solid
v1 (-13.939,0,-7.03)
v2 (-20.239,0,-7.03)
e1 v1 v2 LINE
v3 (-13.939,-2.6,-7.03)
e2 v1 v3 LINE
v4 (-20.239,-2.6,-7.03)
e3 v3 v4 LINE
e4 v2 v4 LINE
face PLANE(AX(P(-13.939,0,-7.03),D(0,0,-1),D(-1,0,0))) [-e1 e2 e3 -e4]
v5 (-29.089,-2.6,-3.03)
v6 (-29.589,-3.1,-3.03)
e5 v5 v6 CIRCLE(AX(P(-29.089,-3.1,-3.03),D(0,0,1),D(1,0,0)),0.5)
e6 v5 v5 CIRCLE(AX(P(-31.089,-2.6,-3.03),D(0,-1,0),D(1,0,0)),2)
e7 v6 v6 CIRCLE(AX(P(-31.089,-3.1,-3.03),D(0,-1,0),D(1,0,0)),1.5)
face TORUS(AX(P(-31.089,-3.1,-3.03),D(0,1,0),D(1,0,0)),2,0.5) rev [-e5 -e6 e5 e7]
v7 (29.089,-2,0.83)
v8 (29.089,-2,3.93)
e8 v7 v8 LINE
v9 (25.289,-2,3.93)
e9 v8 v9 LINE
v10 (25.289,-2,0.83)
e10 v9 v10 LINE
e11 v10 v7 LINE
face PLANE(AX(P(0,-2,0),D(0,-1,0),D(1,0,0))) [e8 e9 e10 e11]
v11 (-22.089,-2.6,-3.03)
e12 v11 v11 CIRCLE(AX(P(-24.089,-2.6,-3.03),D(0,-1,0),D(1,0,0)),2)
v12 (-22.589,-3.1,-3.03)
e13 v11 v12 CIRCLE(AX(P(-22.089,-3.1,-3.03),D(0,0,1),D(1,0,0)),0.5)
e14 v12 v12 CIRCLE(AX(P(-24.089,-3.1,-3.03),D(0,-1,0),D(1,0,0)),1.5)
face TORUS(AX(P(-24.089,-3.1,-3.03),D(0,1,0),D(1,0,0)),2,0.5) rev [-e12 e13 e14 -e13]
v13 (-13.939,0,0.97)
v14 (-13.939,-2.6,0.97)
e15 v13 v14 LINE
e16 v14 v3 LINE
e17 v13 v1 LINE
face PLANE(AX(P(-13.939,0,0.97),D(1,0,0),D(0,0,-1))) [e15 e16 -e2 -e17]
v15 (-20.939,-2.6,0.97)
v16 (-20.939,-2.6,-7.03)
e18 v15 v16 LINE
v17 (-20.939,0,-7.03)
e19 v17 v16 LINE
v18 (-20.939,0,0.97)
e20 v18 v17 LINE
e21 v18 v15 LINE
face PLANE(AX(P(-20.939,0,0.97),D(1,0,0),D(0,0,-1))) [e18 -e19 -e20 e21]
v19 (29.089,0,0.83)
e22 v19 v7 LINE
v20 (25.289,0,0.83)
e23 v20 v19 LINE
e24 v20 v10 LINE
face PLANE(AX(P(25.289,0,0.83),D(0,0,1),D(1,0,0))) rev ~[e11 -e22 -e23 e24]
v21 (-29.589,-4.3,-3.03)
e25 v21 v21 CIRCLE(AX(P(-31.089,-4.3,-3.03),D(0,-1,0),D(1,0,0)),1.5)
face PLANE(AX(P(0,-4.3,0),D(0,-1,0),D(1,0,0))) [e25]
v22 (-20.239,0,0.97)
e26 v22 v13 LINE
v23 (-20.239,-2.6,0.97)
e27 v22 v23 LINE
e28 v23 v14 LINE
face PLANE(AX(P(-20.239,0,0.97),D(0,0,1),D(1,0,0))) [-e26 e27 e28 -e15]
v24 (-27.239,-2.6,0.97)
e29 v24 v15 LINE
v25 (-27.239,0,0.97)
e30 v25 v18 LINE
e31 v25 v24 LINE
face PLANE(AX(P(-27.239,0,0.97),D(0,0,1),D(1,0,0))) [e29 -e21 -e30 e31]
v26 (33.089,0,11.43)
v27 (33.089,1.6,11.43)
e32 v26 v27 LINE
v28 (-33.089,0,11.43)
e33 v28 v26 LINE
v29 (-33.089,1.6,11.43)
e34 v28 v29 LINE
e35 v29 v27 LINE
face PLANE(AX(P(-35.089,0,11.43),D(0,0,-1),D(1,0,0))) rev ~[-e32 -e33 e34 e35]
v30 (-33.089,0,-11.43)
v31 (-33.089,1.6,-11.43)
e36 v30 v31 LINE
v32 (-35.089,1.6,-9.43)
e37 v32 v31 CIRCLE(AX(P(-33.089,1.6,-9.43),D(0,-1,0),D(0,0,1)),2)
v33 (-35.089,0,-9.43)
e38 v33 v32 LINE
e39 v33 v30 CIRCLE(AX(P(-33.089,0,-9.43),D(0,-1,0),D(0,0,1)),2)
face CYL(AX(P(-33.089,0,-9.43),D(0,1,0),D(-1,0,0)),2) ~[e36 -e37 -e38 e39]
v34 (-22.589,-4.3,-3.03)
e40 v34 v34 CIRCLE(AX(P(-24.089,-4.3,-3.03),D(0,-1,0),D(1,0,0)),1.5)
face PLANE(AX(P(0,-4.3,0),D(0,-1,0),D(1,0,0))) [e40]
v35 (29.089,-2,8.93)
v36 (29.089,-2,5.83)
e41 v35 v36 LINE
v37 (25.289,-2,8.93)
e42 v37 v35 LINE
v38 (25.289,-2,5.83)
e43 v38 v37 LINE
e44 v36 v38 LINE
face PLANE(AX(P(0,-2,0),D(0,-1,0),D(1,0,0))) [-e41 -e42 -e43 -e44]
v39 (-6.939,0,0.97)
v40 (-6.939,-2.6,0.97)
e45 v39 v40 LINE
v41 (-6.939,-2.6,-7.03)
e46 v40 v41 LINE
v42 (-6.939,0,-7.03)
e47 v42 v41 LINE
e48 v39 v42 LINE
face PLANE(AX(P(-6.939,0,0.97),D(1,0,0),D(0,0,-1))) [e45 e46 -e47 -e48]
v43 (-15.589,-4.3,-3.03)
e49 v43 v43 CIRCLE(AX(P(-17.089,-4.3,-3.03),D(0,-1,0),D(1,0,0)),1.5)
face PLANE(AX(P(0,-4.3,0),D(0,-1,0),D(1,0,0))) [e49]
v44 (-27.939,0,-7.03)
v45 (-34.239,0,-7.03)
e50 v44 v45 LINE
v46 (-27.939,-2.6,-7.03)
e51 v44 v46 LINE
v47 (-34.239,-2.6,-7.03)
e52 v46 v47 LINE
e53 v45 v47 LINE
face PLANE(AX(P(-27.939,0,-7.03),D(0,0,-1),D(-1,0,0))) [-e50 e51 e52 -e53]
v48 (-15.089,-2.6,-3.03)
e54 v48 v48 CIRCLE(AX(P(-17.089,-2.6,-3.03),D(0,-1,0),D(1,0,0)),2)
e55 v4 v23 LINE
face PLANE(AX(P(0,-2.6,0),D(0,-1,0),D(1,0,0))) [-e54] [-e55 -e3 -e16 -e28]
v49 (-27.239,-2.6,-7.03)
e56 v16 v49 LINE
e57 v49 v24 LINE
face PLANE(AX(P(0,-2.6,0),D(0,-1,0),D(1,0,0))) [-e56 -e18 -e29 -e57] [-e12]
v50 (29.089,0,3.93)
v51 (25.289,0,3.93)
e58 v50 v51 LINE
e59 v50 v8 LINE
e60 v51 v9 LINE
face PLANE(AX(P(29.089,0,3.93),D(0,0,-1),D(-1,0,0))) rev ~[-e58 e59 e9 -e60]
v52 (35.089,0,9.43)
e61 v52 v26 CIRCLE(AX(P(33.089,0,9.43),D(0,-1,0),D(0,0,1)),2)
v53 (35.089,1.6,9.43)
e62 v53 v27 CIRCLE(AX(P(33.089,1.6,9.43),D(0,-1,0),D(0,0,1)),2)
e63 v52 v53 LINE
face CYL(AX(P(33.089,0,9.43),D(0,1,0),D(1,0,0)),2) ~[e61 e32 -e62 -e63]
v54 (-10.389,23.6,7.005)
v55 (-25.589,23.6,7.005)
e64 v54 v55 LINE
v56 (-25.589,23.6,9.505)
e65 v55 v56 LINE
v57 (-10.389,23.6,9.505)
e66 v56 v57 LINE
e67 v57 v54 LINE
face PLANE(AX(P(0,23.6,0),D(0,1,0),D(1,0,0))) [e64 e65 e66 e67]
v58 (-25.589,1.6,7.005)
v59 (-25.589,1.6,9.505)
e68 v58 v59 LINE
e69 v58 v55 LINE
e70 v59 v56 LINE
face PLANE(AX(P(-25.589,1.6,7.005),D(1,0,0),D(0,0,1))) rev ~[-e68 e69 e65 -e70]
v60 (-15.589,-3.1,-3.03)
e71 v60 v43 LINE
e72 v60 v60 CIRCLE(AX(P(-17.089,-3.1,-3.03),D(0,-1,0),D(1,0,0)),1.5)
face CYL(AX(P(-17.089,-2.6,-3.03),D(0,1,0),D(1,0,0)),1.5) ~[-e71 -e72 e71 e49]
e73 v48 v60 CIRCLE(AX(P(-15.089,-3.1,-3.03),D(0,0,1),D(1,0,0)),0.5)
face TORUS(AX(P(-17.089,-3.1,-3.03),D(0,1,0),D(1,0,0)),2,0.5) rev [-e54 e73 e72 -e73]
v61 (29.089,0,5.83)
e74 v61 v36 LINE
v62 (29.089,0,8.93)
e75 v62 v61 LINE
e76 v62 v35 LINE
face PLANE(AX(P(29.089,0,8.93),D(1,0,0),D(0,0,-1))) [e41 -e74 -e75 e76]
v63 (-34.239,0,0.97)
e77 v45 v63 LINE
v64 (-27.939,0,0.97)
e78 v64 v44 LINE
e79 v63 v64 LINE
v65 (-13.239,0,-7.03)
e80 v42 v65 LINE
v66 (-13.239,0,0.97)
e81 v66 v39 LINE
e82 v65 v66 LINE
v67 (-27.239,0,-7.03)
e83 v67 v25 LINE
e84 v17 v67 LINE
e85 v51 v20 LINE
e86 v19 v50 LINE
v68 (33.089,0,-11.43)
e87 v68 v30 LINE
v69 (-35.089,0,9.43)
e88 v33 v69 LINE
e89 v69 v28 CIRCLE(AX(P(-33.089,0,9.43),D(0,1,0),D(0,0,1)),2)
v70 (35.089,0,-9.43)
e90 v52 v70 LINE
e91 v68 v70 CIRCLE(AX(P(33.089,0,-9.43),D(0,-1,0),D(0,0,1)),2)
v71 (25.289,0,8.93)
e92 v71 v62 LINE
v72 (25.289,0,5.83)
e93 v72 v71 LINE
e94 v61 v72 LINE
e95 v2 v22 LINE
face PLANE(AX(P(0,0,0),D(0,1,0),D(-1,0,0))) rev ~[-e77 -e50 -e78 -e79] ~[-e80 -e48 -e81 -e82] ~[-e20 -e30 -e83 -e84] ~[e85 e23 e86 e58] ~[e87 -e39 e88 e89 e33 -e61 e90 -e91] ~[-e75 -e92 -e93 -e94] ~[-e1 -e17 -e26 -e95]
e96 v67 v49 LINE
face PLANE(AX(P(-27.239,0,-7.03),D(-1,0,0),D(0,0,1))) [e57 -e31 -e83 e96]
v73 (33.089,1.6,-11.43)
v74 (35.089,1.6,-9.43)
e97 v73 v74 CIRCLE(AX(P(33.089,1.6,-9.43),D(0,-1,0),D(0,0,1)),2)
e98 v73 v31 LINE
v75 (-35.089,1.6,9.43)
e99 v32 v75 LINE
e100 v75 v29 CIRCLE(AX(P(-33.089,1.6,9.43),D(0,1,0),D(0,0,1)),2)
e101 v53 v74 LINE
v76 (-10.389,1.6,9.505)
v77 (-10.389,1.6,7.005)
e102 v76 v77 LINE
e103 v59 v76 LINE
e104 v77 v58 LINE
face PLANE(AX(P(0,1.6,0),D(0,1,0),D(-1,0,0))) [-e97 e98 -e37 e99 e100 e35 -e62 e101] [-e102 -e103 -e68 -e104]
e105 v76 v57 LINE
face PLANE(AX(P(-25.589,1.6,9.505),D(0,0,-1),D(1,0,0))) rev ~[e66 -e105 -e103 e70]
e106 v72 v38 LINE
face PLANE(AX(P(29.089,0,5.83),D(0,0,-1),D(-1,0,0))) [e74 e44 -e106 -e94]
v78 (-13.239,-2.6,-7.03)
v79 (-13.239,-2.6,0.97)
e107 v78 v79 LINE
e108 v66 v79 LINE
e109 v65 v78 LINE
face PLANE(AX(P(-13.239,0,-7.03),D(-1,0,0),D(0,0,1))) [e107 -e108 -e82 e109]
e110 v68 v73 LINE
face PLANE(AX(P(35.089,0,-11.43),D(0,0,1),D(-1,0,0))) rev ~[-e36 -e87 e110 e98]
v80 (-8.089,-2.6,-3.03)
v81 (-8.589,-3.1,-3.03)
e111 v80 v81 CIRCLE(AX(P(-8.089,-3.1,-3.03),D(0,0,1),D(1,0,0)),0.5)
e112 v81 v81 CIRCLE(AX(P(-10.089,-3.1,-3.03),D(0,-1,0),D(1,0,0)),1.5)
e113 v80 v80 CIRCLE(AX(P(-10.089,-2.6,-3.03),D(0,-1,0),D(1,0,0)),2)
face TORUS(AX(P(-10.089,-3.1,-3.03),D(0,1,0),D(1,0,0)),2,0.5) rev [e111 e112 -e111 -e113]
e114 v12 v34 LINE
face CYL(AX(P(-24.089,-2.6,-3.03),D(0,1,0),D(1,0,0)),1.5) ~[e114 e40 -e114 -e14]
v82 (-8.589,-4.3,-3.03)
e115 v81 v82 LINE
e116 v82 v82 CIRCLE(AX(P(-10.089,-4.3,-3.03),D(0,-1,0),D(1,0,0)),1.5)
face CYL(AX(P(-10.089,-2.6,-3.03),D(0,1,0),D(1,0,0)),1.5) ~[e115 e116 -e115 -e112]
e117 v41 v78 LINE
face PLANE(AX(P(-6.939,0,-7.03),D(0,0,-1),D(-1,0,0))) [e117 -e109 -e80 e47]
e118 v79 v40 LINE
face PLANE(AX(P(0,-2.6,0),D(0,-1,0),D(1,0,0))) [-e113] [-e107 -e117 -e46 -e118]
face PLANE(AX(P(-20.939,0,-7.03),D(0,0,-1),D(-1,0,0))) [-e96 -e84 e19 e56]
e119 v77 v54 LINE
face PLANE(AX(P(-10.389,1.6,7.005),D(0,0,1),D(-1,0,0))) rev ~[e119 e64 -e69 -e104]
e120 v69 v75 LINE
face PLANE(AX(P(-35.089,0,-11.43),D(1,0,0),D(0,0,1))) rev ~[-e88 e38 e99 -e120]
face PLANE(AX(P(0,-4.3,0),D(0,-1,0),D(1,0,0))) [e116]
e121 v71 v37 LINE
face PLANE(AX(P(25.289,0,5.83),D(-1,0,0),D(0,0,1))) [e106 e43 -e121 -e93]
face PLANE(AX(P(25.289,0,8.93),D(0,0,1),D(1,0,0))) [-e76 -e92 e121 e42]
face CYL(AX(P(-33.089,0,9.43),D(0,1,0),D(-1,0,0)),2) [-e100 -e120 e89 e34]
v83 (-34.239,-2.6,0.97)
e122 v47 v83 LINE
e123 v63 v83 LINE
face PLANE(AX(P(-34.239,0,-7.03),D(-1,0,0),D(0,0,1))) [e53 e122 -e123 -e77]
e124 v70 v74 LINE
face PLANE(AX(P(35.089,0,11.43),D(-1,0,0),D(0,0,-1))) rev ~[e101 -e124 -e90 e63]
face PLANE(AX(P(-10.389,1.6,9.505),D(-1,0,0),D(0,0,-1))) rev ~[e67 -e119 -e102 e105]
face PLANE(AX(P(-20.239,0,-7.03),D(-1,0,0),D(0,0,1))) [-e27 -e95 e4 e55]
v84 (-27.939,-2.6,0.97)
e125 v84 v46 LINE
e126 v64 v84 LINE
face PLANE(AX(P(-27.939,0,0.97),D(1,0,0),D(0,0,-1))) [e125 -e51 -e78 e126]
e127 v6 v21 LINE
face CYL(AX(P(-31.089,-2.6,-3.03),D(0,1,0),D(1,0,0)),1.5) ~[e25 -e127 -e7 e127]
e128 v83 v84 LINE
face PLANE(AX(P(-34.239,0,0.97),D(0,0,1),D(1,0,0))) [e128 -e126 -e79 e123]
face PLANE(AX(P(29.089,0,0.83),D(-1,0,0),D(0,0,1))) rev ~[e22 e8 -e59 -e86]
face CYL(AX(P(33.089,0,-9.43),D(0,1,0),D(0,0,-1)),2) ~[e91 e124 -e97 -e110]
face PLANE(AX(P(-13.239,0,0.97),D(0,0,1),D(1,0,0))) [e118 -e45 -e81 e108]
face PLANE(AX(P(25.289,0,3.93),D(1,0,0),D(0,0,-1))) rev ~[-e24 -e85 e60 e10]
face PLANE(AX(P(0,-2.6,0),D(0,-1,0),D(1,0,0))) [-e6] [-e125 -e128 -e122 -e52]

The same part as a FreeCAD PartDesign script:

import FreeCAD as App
import Part
import Sketcher

V = App.Vector
Q = App.Units.Quantity


def edges_at(feature, points):
    """Names of the edges that pass closest to the given points."""
    edges = feature.Shape.Edges
    near = lambda p: min(range(len(edges)), key=lambda i: edges[i].distToShape(Part.Vertex(*p))[0])
    return sorted({f"Edge{near(p) + 1}" for p in points})


def add_polygon(sketch, points):
    """Adds a closed chain of lines whose ends are joined by coincident constraints."""
    first, n = sketch.GeometryCount, len(points)
    for a, b in zip(points, points[1:] + points[:1]):
        sketch.addGeometry(Part.LineSegment(App.Vector(*a, 0), App.Vector(*b, 0)), False)
    for i in range(n):
        sketch.addConstraint(Sketcher.Constraint("Coincident", first + i, 2, first + (i + 1) % n, 1))

doc = App.newDocument("Part")
body = doc.addObject("PartDesign::Body", "Body")

# Sketch on XZ plane
sketch1 = body.newObject("Sketcher::SketchObject", "Sketch")
sketch1.AttachmentSupport = (doc.getObject("XZ_Plane"), [""])
sketch1.MapMode = "FlatFace"
add_polygon(sketch1, [(-35, -11), (-35, 11), (35, 11), (35, -11)])  # lines 0-3
sketch1.addConstraint([
    Sketcher.Constraint("Vertical", 0),
    Sketcher.Constraint("Horizontal", 1),
    Sketcher.Constraint("Vertical", 2),
    Sketcher.Constraint("Horizontal", 3),
    Sketcher.Constraint("Symmetric", 0, 2, 2, 2, -1, 1),
    Sketcher.Constraint("DistanceY", 0, 1, 0, 2, Q("22.86 mm")),
    Sketcher.Constraint("DistanceX", 1, 1, 1, 2, Q("70.178 mm")),
])
pad1 = body.newObject("PartDesign::Pad", "Pad")
pad1.Profile = sketch1
pad1.Length = 1.6
pad1.Reversed = True
doc.recompute()

fillet = body.newObject("PartDesign::Fillet", "Fillet")
fillet.Base = (pad1, edges_at(pad1, [
    (-35.089, 0.8, -11.43),
    (-35.089, 0.8, 11.43),
    (35.089, 0.8, 11.43),
    (35.089, 0.8, -11.43),
]))
fillet.Radius = 2

# Sketch on XZ plane
sketch2 = body.newObject("Sketcher::SketchObject", "Sketch001")
sketch2.AttachmentSupport = (doc.getObject("XZ_Plane"), [""])
sketch2.MapMode = "FlatFace"
add_polygon(sketch2, [(-28, 1), (-34, 1), (-34, -7), (-28, -7)])  # lines 0-3
add_polygon(sketch2, [(-21, 1), (-27, 1), (-27, -7), (-21, -7)])  # lines 4-7
add_polygon(sketch2, [(-14, 1), (-20, 1), (-20, -7), (-14, -7)])  # lines 8-11
add_polygon(sketch2, [(-7, 1), (-13, 1), (-13, -7), (-7, -7)])  # lines 12-15
sketch2.addConstraint([
    Sketcher.Constraint("Horizontal", 0),
    Sketcher.Constraint("Vertical", 1),
    Sketcher.Constraint("Horizontal", 2),
    Sketcher.Constraint("Vertical", 3),
    Sketcher.Constraint("Horizontal", 4),
    Sketcher.Constraint("Vertical", 5),
    Sketcher.Constraint("Horizontal", 6),
    Sketcher.Constraint("Vertical", 7),
    Sketcher.Constraint("Horizontal", 8),
    Sketcher.Constraint("Vertical", 9),
    Sketcher.Constraint("Horizontal", 10),
    Sketcher.Constraint("Vertical", 11),
    Sketcher.Constraint("Horizontal", 12),
    Sketcher.Constraint("Vertical", 13),
    Sketcher.Constraint("Horizontal", 14),
    Sketcher.Constraint("Vertical", 15),
    Sketcher.Constraint("Horizontal", 3, 2, 4, 2),
    Sketcher.Constraint("Horizontal", 2, 2, 5, 2),
    Sketcher.Constraint("Horizontal", 7, 2, 8, 2),
    Sketcher.Constraint("Horizontal", 6, 2, 9, 2),
    Sketcher.Constraint("Horizontal", 11, 2, 12, 2),
    Sketcher.Constraint("Horizontal", 10, 2, 13, 2),
    Sketcher.Constraint("Equal", 2, 4),
    Sketcher.Constraint("Equal", 6, 8),
    Sketcher.Constraint("Equal", 10, 12),
    Sketcher.Constraint("DistanceY", 1, 2, 1, 1, Q("8 mm")),
    Sketcher.Constraint("DistanceX", 0, 2, 0, 1, Q("6.3 mm")),
    Sketcher.Constraint("DistanceX", 0, 2, 4, 2, Q("7 mm")),
    Sketcher.Constraint("DistanceX", 4, 2, 8, 2, Q("7 mm")),
    Sketcher.Constraint("DistanceX", 8, 2, 12, 2, Q("7 mm")),
    Sketcher.Constraint("DistanceY", -1, 1, 0, 2, Q("0.97 mm")),
    Sketcher.Constraint("DistanceX", 0, 2, -1, 1, Q("34.239 mm")),
])
pad2 = body.newObject("PartDesign::Pad", "Pad001")
pad2.Profile = sketch2
pad2.Length = 2.6

# Sketch on XZ plane
sketch3 = body.newObject("Sketcher::SketchObject", "Sketch002")
sketch3.AttachmentSupport = (doc.getObject("XZ_Plane"), [""])
sketch3.MapMode = "FlatFace"
sketch3.AttachmentOffset = App.Placement(V(0, 0, 2.6), App.Rotation())
sketch3.addGeometry([
    Part.Circle(V(-31.1, -3, 0), V(0, 0, 1), 1.5),
    Part.Circle(V(-24.1, -3, 0), V(0, 0, 1), 1.5),
    Part.Circle(V(-17.1, -3, 0), V(0, 0, 1), 1.5),
    Part.Circle(V(-10.1, -3, 0), V(0, 0, 1), 1.5),
], False)
sketch3.addConstraint([
    Sketcher.Constraint("Equal", 0, 1),
    Sketcher.Constraint("Equal", 1, 2),
    Sketcher.Constraint("Equal", 2, 3),
    Sketcher.Constraint("Horizontal", 0, 3, 1, 3),
    Sketcher.Constraint("Horizontal", 1, 3, 2, 3),
    Sketcher.Constraint("Horizontal", 2, 3, 3, 3),
    Sketcher.Constraint("Diameter", 0, Q("3 mm")),
    Sketcher.Constraint("DistanceX", 0, 3, 1, 3, Q("7 mm")),
    Sketcher.Constraint("DistanceX", 1, 3, 2, 3, Q("7 mm")),
    Sketcher.Constraint("DistanceX", 2, 3, 3, 3, Q("7 mm")),
    Sketcher.Constraint("DistanceY", 0, 3, -1, 1, Q("3.03 mm")),
    Sketcher.Constraint("DistanceX", 0, 3, -1, 1, Q("31.089 mm")),
])
pad3 = body.newObject("PartDesign::Pad", "Pad002")
pad3.Profile = sketch3
pad3.Length = 1.7
doc.recompute()

fillet2 = body.newObject("PartDesign::Fillet", "Fillet001")
fillet2.Base = (pad3, edges_at(pad3, [
    (-32.589, -2.6, -3.03),
    (-25.589, -2.6, -3.03),
    (-18.589, -2.6, -3.03),
    (-11.589, -2.6, -3.03),
]))
fillet2.Radius = 0.5

# Sketch on XZ plane
sketch4 = body.newObject("Sketcher::SketchObject", "Sketch003")
sketch4.AttachmentSupport = (doc.getObject("XZ_Plane"), [""])
sketch4.MapMode = "FlatFace"
add_polygon(sketch4, [(29.1, 8.9), (25.3, 8.9), (25.3, 5.8), (29.1, 5.8)])  # lines 0-3
add_polygon(sketch4, [(25.3, 3.9), (25.3, 0.8), (29.1, 0.8), (29.1, 3.9)])  # lines 4-7
sketch4.addConstraint([
    Sketcher.Constraint("Horizontal", 0),
    Sketcher.Constraint("Vertical", 1),
    Sketcher.Constraint("Horizontal", 2),
    Sketcher.Constraint("Vertical", 3),
    Sketcher.Constraint("Vertical", 4),
    Sketcher.Constraint("Horizontal", 5),
    Sketcher.Constraint("Vertical", 6),
    Sketcher.Constraint("Horizontal", 7),
    Sketcher.Constraint("Vertical", 1, 2, 4, 2),
    Sketcher.Constraint("Vertical", 3, 2, 5, 2),
    Sketcher.Constraint("Equal", 3, 4),
    Sketcher.Constraint("DistanceX", 0, 2, 0, 1, Q("3.8 mm")),
    Sketcher.Constraint("DistanceY", 1, 2, 1, 1, Q("3.1 mm")),
    Sketcher.Constraint("DistanceY", 6, 2, 2, 2, Q("1.9 mm")),
    Sketcher.Constraint("DistanceY", -1, 1, 0, 2, Q("8.93 mm")),
    Sketcher.Constraint("DistanceX", -1, 1, 0, 2, Q("25.289 mm")),
])
pad4 = body.newObject("PartDesign::Pad", "Pad003")
pad4.Profile = sketch4
pad4.Length = 2

# Sketch on XZ plane
sketch5 = body.newObject("Sketcher::SketchObject", "Sketch004")
sketch5.AttachmentSupport = (doc.getObject("XZ_Plane"), [""])
sketch5.MapMode = "FlatFace"
sketch5.AttachmentOffset = App.Placement(V(0, 0, -1.6), App.Rotation())
add_polygon(sketch5, [(-25.6, 7), (-25.6, 9.5), (-10.4, 9.5), (-10.4, 7)])  # lines 0-3
sketch5.addConstraint([
    Sketcher.Constraint("Vertical", 0),
    Sketcher.Constraint("Horizontal", 1),
    Sketcher.Constraint("Vertical", 2),
    Sketcher.Constraint("Horizontal", 3),
    Sketcher.Constraint("DistanceX", 1, 1, 1, 2, Q("15.2 mm")),
    Sketcher.Constraint("DistanceY", 0, 1, 0, 2, Q("2.5 mm")),
    Sketcher.Constraint("DistanceX", 0, 2, -1, 1, Q("25.589 mm")),
    Sketcher.Constraint("DistanceY", -1, 1, 0, 2, Q("9.505 mm")),
])
pad5 = body.newObject("PartDesign::Pad", "Pad004")
pad5.Profile = sketch5
pad5.Length = 22
pad5.Reversed = True

doc.recompute()
